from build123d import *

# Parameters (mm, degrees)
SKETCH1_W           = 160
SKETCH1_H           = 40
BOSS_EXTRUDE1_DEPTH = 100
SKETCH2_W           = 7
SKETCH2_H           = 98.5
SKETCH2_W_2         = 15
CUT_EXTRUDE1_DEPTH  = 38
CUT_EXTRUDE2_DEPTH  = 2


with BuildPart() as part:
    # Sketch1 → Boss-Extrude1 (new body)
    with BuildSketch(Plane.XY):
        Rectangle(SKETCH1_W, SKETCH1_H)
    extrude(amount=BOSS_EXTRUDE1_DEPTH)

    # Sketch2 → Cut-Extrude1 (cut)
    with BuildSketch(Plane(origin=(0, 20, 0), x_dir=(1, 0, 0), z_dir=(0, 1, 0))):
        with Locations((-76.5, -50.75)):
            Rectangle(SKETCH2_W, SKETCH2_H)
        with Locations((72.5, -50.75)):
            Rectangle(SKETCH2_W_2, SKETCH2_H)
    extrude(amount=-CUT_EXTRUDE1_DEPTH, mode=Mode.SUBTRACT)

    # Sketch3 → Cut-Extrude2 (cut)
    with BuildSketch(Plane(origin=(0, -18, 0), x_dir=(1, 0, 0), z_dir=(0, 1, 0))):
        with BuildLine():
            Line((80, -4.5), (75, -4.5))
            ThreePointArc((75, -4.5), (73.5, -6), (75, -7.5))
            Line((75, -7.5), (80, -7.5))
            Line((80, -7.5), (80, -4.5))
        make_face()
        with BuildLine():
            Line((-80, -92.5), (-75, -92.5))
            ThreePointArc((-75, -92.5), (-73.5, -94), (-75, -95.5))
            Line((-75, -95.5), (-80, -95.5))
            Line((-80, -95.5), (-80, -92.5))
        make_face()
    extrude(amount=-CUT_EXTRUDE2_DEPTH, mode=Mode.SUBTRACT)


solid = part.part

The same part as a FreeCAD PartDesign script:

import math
import FreeCAD as App
import Part
import Sketcher

doc = App.newDocument("Part")
params = doc.addObject("Spreadsheet::Sheet", "Params")
for row, (alias, value) in enumerate([
    ("sketch1_width", "160 mm"),
    ("sketch1_height", "40 mm"),
    ("pad1_length", "100 mm"),
    ("sketch2_width", "7 mm"),
    ("sketch2_width2", "15 mm"),
    ("sketch2_height", "98.5 mm"),
    ("pocket1_length", "38 mm"),
    ("sketch3_radius", "1.5 mm"),
    ("sketch3_width", "5 mm"),
    ("pocket2_length", "2 mm"),
], start=1):
    params.set(f"A{row}", alias)
    params.set(f"B{row}", "=" + value)
    params.setAlias(f"B{row}", alias)

body = doc.addObject("PartDesign::Body", "Body")

# Sketch on XY plane
sketch1 = body.newObject("Sketcher::SketchObject", "Sketch")
sketch1.AttachmentSupport = (doc.getObject("XY_Plane"), [""])
sketch1.MapMode = "FlatFace"
sketch1.addGeometry([
    Part.LineSegment(App.Vector(-80, 20, 0), App.Vector(-80, -20, 0)),
    Part.LineSegment(App.Vector(-80, -20, 0), App.Vector(80, -20, 0)),
    Part.LineSegment(App.Vector(80, -20, 0), App.Vector(80, 20, 0)),
    Part.LineSegment(App.Vector(80, 20, 0), App.Vector(-80, 20, 0)),
], False)
sketch1.addConstraint([
    Sketcher.Constraint("Coincident", 0, 2, 1, 1),
    Sketcher.Constraint("Coincident", 1, 2, 2, 1),
    Sketcher.Constraint("Coincident", 2, 2, 3, 1),
    Sketcher.Constraint("Coincident", 3, 2, 0, 1),
    Sketcher.Constraint("Vertical", 0),
    Sketcher.Constraint("Horizontal", 1),
    Sketcher.Constraint("Vertical", 2),
    Sketcher.Constraint("Horizontal", 3),
    Sketcher.Constraint("Symmetric", 0, 2, 2, 2, -1, 1),
    Sketcher.Constraint("DistanceX", 1, 1, 1, 2, 160.0),
    Sketcher.Constraint("DistanceY", 0, 2, 0, 1, 40.0),
])
sketch1.setExpression("Constraints[9]", "Params.sketch1_width")
sketch1.setExpression("Constraints[10]", "Params.sketch1_height")
pad1 = body.newObject("PartDesign::Pad", "Pad")
pad1.Profile = sketch1
pad1.setExpression("Length", "Params.pad1_length")

# Sketch on XZ plane
sketch2 = body.newObject("Sketcher::SketchObject", "Sketch001")
sketch2.AttachmentSupport = (doc.getObject("XZ_Plane"), [""])
sketch2.MapMode = "FlatFace"
sketch2.AttachmentOffset = App.Placement(App.Vector(0, 0, -20), App.Rotation())
sketch2.addGeometry([
    Part.LineSegment(App.Vector(-80, 2, 0), App.Vector(-80, 100, 0)),  # 0
    Part.LineSegment(App.Vector(-80, 100, 0), App.Vector(-73, 100, 0)),  # 1
    Part.LineSegment(App.Vector(-73, 100, 0), App.Vector(-73, 2, 0)),  # 2
    Part.LineSegment(App.Vector(-73, 2, 0), App.Vector(-80, 2, 0)),  # 3
    Part.LineSegment(App.Vector(65, 2, 0), App.Vector(65, 100, 0)),  # 4
    Part.LineSegment(App.Vector(65, 100, 0), App.Vector(80, 100, 0)),  # 5
    Part.LineSegment(App.Vector(80, 100, 0), App.Vector(80, 2, 0)),  # 6
    Part.LineSegment(App.Vector(80, 2, 0), App.Vector(65, 2, 0)),  # 7
], False)
sketch2.addConstraint([
    Sketcher.Constraint("Coincident", 0, 2, 1, 1),
    Sketcher.Constraint("Coincident", 1, 2, 2, 1),
    Sketcher.Constraint("Coincident", 2, 2, 3, 1),
    Sketcher.Constraint("Coincident", 3, 2, 0, 1),
    Sketcher.Constraint("Coincident", 4, 2, 5, 1),
    Sketcher.Constraint("Coincident", 5, 2, 6, 1),
    Sketcher.Constraint("Coincident", 6, 2, 7, 1),
    Sketcher.Constraint("Coincident", 7, 2, 4, 1),
    Sketcher.Constraint("Vertical", 0),
    Sketcher.Constraint("Horizontal", 1),
    Sketcher.Constraint("Vertical", 2),
    Sketcher.Constraint("Horizontal", 3),
    Sketcher.Constraint("Vertical", 4),
    Sketcher.Constraint("Horizontal", 5),
    Sketcher.Constraint("Vertical", 6),
    Sketcher.Constraint("Horizontal", 7),
    Sketcher.Constraint("Symmetric", 0, 2, 5, 2, -2),
    Sketcher.Constraint("Horizontal", 3, 2, 6, 2),
    Sketcher.Constraint("DistanceX", 1, 1, 1, 2, 7.0),
    Sketcher.Constraint("DistanceX", 5, 1, 5, 2, 15.0),
    Sketcher.Constraint("DistanceY", 0, 1, 0, 2, 98.5),
    Sketcher.Constraint("DistanceX", 0, 2, -1, 1, 80.0),
    Sketcher.Constraint("DistanceY", -1, 1, 0, 2, 100.0),
])
sketch2.setExpression("Constraints[18]", "Params.sketch2_width")
sketch2.setExpression("Constraints[19]", "Params.sketch2_width2")
sketch2.setExpression("Constraints[20]", "Params.sketch2_height")
pocket1 = body.newObject("PartDesign::Pocket", "Pocket")
pocket1.Profile = sketch2
pocket1.setExpression("Length", "Params.pocket1_length")
pocket1.Reversed = True

# Sketch on XZ plane
sketch3 = body.newObject("Sketcher::SketchObject", "Sketch002")
sketch3.AttachmentSupport = (doc.getObject("XZ_Plane"), [""])
sketch3.MapMode = "FlatFace"
sketch3.AttachmentOffset = App.Placement(App.Vector(0, 0, 18), App.Rotation())
sketch3.addGeometry([
    Part.LineSegment(App.Vector(80, 4.5, 0), App.Vector(75, 4.5, 0)),  # 0
    Part.ArcOfCircle(Part.Circle(App.Vector(75, 6, 0), App.Vector(0, 0, 1), 1.5), math.radians(90), math.radians(270)),  # 1
    Part.LineSegment(App.Vector(75, 7.5, 0), App.Vector(80, 7.5, 0)),  # 2
    Part.LineSegment(App.Vector(80, 7.5, 0), App.Vector(80, 4.5, 0)),  # 3
    Part.LineSegment(App.Vector(-75, 92.5, 0), App.Vector(-80, 92.5, 0)),  # 4
    Part.LineSegment(App.Vector(-80, 92.5, 0), App.Vector(-80, 95.5, 0)),  # 5
    Part.LineSegment(App.Vector(-80, 95.5, 0), App.Vector(-75, 95.5, 0)),  # 6
    Part.ArcOfCircle(Part.Circle(App.Vector(-75, 94, 0), App.Vector(0, 0, 1), 1.5), math.radians(-90), math.radians(90)),  # 7
], False)
sketch3.addConstraint([
    Sketcher.Constraint("Tangent", 0, 2, 1, 2),
    Sketcher.Constraint("Tangent", 1, 1, 2, 1),
    Sketcher.Constraint("Coincident", 2, 2, 3, 1),
    Sketcher.Constraint("Coincident", 3, 2, 0, 1),
    Sketcher.Constraint("Coincident", 4, 2, 5, 1),
    Sketcher.Constraint("Coincident", 5, 2, 6, 1),
    Sketcher.Constraint("Tangent", 6, 2, 7, 2),
    Sketcher.Constraint("Tangent", 7, 1, 4, 1),
    Sketcher.Constraint("Horizontal", 0),
    Sketcher.Constraint("Horizontal", 2),
    Sketcher.Constraint("Vertical", 3),
    Sketcher.Constraint("Horizontal", 4),
    Sketcher.Constraint("Vertical", 5),
    Sketcher.Constraint("Horizontal", 6),
    Sketcher.Constraint("Equal", 1, 7),
    Sketcher.Constraint("Equal", 2, 4),
    Sketcher.Constraint("Radius", 1, 1.5),
    Sketcher.Constraint("DistanceX", 0, 2, 0, 1, 5.0),
    Sketcher.Constraint("DistanceX", -1, 1, 1, 3, 75.0),
    Sketcher.Constraint("DistanceY", -1, 1, 1, 3, 6.0),
    Sketcher.Constraint("DistanceX", 7, 3, -1, 1, 75.0),
    Sketcher.Constraint("DistanceY", -1, 1, 7, 3, 94.0),
])
sketch3.setExpression("Constraints[16]", "Params.sketch3_radius")
sketch3.setExpression("Constraints[17]", "Params.sketch3_width")
pocket2 = body.newObject("PartDesign::Pocket", "Pocket001")
pocket2.Profile = sketch3
pocket2.setExpression("Length", "Params.pocket2_length")
pocket2.Reversed = True

doc.recompute()
